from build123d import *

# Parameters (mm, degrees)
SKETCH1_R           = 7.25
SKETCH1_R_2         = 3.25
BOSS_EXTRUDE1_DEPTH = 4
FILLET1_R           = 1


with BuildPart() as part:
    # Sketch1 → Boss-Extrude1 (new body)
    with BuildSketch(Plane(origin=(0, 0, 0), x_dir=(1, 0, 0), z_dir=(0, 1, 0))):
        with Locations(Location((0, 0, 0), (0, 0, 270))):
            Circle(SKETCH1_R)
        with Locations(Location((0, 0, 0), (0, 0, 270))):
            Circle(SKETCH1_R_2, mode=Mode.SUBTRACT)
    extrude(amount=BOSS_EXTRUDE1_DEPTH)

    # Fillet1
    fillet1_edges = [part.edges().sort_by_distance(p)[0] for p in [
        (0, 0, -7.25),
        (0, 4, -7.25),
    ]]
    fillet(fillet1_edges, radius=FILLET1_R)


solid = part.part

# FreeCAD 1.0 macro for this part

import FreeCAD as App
import Part
import Sketcher

V = App.Vector


def edges_at(feature, points):
    """Names of the edges that pass closest to the given points."""
    edges = feature.Shape.Edges
    near = lambda p: min(range(len(edges)), key=lambda i: edges[i].distToShape(Part.Vertex(*p))[0])
    return sorted({f"Edge{near(p) + 1}" for p in points})

doc = App.newDocument("Part")
body = doc.addObject("PartDesign::Body", "Body")

sketch1 = doc.addObject("Sketcher::SketchObject", "Sketch")
body.addObject(sketch1)
sketch1.AttachmentSupport = (doc.XZ_Plane, [""])
sketch1.MapMode = "FlatFace"
sketch1.addGeometry([
    Part.Circle(V(0, 0, 0), V(0, 0, 1), 7.2),
    Part.Circle(V(0, 0, 0), V(0, 0, 1), 3.2),
], False)
sketch1.addConstraint([
    Sketcher.Constraint("Coincident", 0, 3, -1, 1),
    Sketcher.Constraint("Coincident", 1, 3, -1, 1),
    Sketcher.Constraint("Diameter", 0, 14.5),
    Sketcher.Constraint("Diameter", 1, 6.5),
])
pad1 = doc.addObject("PartDesign::Pad", "Pad")
body.addObject(pad1)
pad1.Profile = sketch1
pad1.Length = 4
pad1.Reversed = True
doc.recompute()

fillet = doc.addObject("PartDesign::Fillet", "Fillet")
body.addObject(fillet)
fillet.Base = (pad1, edges_at(pad1, [(0, 0, -7.25), (0, 4, -7.25)]))
fillet.Radius = 1

doc.recompute()
